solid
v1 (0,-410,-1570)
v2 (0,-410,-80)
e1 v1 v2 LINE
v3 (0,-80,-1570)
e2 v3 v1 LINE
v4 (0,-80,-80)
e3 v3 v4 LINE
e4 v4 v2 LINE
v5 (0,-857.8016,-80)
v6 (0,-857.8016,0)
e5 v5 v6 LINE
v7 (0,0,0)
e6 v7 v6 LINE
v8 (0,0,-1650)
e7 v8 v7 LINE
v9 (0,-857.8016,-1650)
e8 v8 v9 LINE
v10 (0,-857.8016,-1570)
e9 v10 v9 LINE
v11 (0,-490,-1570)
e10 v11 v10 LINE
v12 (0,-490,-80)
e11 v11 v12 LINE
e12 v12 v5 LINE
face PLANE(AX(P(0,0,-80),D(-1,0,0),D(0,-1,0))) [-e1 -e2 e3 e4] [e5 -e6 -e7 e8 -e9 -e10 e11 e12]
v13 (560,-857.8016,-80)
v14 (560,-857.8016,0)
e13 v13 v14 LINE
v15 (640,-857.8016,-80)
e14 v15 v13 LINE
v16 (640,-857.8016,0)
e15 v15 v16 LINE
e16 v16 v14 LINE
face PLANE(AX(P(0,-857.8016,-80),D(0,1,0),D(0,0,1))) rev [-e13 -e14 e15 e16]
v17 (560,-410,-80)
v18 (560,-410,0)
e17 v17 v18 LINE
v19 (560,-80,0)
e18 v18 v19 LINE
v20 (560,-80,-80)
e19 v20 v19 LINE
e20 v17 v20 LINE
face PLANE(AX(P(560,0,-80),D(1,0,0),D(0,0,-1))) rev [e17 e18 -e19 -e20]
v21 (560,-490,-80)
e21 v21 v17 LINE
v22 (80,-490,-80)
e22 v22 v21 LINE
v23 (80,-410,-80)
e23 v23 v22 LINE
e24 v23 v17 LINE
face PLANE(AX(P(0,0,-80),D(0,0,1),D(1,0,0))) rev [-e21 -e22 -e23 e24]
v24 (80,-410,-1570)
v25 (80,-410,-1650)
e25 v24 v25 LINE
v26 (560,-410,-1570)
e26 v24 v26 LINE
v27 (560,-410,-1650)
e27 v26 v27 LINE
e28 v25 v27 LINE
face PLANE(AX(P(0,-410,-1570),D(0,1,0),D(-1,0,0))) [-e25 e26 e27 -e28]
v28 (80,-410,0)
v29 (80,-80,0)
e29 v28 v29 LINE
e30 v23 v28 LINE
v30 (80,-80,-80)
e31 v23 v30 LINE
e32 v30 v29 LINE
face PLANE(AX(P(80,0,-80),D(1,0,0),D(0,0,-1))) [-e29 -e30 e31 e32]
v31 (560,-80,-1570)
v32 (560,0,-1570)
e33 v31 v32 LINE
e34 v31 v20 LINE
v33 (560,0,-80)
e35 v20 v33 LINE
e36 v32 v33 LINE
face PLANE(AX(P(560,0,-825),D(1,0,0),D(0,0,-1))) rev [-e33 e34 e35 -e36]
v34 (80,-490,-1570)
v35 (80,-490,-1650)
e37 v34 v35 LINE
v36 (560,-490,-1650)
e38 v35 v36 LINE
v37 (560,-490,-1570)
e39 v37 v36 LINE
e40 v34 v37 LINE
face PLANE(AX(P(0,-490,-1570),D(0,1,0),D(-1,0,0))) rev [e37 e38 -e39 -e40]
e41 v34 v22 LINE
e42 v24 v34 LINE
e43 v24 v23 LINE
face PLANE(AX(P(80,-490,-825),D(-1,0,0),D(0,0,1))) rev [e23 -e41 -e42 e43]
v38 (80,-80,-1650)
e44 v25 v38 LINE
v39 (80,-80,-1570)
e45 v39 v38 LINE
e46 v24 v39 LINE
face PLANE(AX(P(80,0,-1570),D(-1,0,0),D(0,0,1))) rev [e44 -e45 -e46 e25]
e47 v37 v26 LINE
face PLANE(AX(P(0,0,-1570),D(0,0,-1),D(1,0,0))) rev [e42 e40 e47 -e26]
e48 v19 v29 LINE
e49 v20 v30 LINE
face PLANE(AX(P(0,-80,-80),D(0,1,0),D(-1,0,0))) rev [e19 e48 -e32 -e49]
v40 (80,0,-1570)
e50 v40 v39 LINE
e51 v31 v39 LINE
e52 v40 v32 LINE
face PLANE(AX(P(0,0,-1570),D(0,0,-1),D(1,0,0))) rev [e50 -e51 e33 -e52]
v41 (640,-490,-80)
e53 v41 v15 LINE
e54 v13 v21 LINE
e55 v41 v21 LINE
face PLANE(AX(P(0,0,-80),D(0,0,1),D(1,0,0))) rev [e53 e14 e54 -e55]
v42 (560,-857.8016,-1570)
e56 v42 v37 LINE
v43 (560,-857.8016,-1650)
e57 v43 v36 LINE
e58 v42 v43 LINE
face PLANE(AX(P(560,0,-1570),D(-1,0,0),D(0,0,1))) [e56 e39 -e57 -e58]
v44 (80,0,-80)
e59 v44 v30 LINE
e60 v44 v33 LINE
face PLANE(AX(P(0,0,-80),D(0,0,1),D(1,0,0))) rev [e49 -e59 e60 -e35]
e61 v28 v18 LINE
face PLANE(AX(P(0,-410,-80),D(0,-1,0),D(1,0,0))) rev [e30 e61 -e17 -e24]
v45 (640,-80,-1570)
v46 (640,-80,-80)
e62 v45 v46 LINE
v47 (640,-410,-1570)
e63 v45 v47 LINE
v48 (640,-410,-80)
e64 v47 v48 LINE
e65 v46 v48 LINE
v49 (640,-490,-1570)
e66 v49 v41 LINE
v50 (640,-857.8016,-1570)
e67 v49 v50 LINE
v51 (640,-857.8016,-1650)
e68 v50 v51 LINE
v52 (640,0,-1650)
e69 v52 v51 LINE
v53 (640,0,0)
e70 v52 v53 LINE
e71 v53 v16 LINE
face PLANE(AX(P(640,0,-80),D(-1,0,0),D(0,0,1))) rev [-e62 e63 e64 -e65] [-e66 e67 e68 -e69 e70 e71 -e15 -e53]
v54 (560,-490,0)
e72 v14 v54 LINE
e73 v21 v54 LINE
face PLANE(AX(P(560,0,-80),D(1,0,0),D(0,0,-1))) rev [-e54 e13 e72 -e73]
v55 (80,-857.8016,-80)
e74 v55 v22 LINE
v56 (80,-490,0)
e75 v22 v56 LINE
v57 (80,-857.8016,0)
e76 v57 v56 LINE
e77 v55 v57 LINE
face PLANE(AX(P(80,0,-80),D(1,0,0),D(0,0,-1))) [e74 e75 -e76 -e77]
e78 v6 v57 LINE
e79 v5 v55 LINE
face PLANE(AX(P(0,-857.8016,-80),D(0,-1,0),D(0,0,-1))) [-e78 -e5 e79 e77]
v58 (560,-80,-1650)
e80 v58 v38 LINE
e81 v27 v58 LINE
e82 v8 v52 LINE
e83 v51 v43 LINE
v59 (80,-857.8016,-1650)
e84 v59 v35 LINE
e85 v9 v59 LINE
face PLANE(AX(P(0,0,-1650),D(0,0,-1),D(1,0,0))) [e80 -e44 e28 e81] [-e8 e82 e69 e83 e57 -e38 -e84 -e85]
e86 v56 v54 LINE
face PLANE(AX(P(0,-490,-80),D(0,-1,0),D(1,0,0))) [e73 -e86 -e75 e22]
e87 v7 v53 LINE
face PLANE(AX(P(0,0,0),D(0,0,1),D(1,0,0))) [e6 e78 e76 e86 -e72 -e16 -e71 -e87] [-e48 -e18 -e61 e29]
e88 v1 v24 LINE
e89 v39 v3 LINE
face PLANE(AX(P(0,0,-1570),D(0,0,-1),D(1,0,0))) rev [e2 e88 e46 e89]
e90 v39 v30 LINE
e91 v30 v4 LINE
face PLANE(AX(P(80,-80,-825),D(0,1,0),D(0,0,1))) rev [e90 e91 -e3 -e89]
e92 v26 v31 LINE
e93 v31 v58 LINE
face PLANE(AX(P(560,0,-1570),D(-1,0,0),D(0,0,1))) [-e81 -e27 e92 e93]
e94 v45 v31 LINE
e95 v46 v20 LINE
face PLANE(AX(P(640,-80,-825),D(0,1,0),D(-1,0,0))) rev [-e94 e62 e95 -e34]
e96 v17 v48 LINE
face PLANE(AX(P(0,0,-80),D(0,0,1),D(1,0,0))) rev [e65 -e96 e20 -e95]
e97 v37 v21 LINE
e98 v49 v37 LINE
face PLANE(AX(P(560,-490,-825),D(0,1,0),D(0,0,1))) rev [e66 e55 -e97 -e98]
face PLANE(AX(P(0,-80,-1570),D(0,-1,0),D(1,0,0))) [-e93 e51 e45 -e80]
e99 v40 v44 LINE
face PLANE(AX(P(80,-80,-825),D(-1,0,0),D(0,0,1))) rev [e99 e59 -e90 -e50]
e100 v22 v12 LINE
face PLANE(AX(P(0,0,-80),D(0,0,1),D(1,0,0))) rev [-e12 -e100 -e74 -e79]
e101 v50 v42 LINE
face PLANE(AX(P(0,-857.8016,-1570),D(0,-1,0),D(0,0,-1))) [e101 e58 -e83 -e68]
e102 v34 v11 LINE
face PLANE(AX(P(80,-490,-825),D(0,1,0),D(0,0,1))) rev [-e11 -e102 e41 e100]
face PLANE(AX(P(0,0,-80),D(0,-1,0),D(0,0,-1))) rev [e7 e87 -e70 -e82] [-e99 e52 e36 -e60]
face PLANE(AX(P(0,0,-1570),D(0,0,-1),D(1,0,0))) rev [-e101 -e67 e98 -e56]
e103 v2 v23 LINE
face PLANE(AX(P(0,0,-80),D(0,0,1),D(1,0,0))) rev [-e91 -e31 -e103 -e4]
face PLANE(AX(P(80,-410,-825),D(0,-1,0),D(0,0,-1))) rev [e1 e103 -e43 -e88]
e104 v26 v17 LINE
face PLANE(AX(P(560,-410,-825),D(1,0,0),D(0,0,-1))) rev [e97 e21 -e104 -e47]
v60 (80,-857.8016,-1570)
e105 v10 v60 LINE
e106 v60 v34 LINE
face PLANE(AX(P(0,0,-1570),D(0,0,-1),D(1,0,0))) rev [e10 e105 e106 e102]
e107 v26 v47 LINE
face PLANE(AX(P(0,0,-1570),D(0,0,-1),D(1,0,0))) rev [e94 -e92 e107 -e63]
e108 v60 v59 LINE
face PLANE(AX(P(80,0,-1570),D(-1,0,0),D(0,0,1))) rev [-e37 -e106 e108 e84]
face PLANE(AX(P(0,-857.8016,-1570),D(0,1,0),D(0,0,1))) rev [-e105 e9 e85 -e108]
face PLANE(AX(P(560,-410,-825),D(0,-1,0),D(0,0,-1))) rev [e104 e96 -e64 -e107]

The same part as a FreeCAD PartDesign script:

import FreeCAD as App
import Part
import Sketcher

V = App.Vector


def add_polygon(sketch, points):
    """Adds a closed chain of lines whose ends are joined by coincident constraints."""
    first, n = sketch.GeometryCount, len(points)
    for a, b in zip(points, points[1:] + points[:1]):
        sketch.addGeometry(Part.LineSegment(App.Vector(*a, 0), App.Vector(*b, 0)), False)
    for i in range(n):
        sketch.addConstraint(Sketcher.Constraint("Coincident", first + i, 2, first + (i + 1) % n, 1))

doc = App.newDocument("Part")
body = doc.addObject("PartDesign::Body", "Body")

sketch1 = body.newObject("Sketcher::SketchObject", "Sketch")
sketch1.AttachmentSupport = (doc.getObject("XY_Plane"), [""])
sketch1.MapMode = "FlatFace"
add_polygon(sketch1, [(640, 0), (0, 0), (0, -858), (80, -858), (80, -490), (560, -490), (560, -858), (640, -858)])
add_polygon(sketch1, [(560, -410), (80, -410), (80, -80), (560, -80)])
sketch1.addConstraint(Sketcher.Constraint("Horizontal", 0))
sketch1.addConstraint(Sketcher.Constraint("Vertical", 1))
sketch1.addConstraint(Sketcher.Constraint("Horizontal", 2))
sketch1.addConstraint(Sketcher.Constraint("Vertical", 3))
sketch1.addConstraint(Sketcher.Constraint("Horizontal", 4))
sketch1.addConstraint(Sketcher.Constraint("Vertical", 5))
sketch1.addConstraint(Sketcher.Constraint("Horizontal", 6))
sketch1.addConstraint(Sketcher.Constraint("Vertical", 7))
sketch1.addConstraint(Sketcher.Constraint("Horizontal", 8))
sketch1.addConstraint(Sketcher.Constraint("Vertical", 9))
sketch1.addConstraint(Sketcher.Constraint("Horizontal", 10))
sketch1.addConstraint(Sketcher.Constraint("Vertical", 11))
sketch1.addConstraint(Sketcher.Constraint("Coincident", 0, 2, -1, 1))
sketch1.addConstraint(Sketcher.Constraint("Horizontal", 2, 2, 5, 2))
sketch1.addConstraint(Sketcher.Constraint("Vertical", 3, 2, 8, 2))
sketch1.addConstraint(Sketcher.Constraint("Vertical", 5, 2, 10, 2))
sketch1.addConstraint(Sketcher.Constraint("Equal", 2, 6))
sketch1.addConstraint(Sketcher.Constraint("DistanceX", 0, 2, 0, 1, 640.0))
sketch1.addConstraint(Sketcher.Constraint("DistanceX", 2, 1, 2, 2, 80.0))
sketch1.addConstraint(Sketcher.Constraint("DistanceY", 9, 1, 9, 2, 330.0))
sketch1.addConstraint(Sketcher.Constraint("DistanceY", 3, 2, -1, 1, 490.0))
sketch1.addConstraint(Sketcher.Constraint("DistanceY", 8, 2, -1, 1, 410.0))
sketch1.addConstraint(Sketcher.Constraint("DistanceY", 1, 2, 1, 1, 857.8016))
pad1 = body.newObject("PartDesign::Pad", "Pad")
pad1.Profile = sketch1
pad1.Length = 80
pad1.Reversed = True

sketch2 = body.newObject("Sketcher::SketchObject", "Sketch001")
sketch2.AttachmentSupport = (doc.getObject("XY_Plane"), [""])
sketch2.MapMode = "FlatFace"
sketch2.AttachmentOffset = App.Placement(V(0, 0, -80), App.Rotation())
add_polygon(sketch2, [(640, 0), (640, -80), (560, -80), (560, 0)])
add_polygon(sketch2, [(80, 0), (80, -80), (0, -80), (0, 0)])
add_polygon(sketch2, [(640, -410), (640, -490), (560, -490), (560, -410)])
add_polygon(sketch2, [(80, -410), (80, -490), (0, -490), (0, -410)])
sketch2.addConstraint(Sketcher.Constraint("Vertical", 0))
sketch2.addConstraint(Sketcher.Constraint("Horizontal", 1))
sketch2.addConstraint(Sketcher.Constraint("Vertical", 2))
sketch2.addConstraint(Sketcher.Constraint("Horizontal", 3))
sketch2.addConstraint(Sketcher.Constraint("Vertical", 4))
sketch2.addConstraint(Sketcher.Constraint("Horizontal", 5))
sketch2.addConstraint(Sketcher.Constraint("Vertical", 6))
sketch2.addConstraint(Sketcher.Constraint("Horizontal", 7))
sketch2.addConstraint(Sketcher.Constraint("Vertical", 8))
sketch2.addConstraint(Sketcher.Constraint("Horizontal", 9))
sketch2.addConstraint(Sketcher.Constraint("Vertical", 10))
sketch2.addConstraint(Sketcher.Constraint("Horizontal", 11))
sketch2.addConstraint(Sketcher.Constraint("Vertical", 12))
sketch2.addConstraint(Sketcher.Constraint("Horizontal", 13))
sketch2.addConstraint(Sketcher.Constraint("Vertical", 14))
sketch2.addConstraint(Sketcher.Constraint("Horizontal", 15))
sketch2.addConstraint(Sketcher.Constraint("Coincident", 6, 2, -1, 1))
sketch2.addConstraint(Sketcher.Constraint("PointOnObject", 2, 2, -1))
sketch2.addConstraint(Sketcher.Constraint("PointOnObject", 13, 2, -2))
sketch2.addConstraint(Sketcher.Constraint("Horizontal", 1, 2, 4, 2))
sketch2.addConstraint(Sketcher.Constraint("Horizontal", 9, 2, 12, 2))
sketch2.addConstraint(Sketcher.Constraint("Horizontal", 11, 2, 14, 2))
sketch2.addConstraint(Sketcher.Constraint("Vertical", 3, 2, 8, 2))
sketch2.addConstraint(Sketcher.Constraint("Vertical", 2, 2, 9, 2))
sketch2.addConstraint(Sketcher.Constraint("Vertical", 7, 2, 12, 2))
sketch2.addConstraint(Sketcher.Constraint("Equal", 3, 5))
sketch2.addConstraint(Sketcher.Constraint("Equal", 15, 0))
sketch2.addConstraint(Sketcher.Constraint("Equal", 6, 8))
sketch2.addConstraint(Sketcher.Constraint("DistanceX", 1, 2, 1, 1, 80.0))
sketch2.addConstraint(Sketcher.Constraint("DistanceX", -1, 1, 0, 2, 640.0))
sketch2.addConstraint(Sketcher.Constraint("DistanceY", 8, 2, -1, 1, 490.0))
pad2 = body.newObject("PartDesign::Pad", "Pad001")
pad2.Profile = sketch2
pad2.Length = 745
pad2.Reversed = True
doc.recompute()

datumplane = body.newObject("PartDesign::Plane", "DatumPlane")
datumplane.AttachmentSupport = (doc.getObject("XY_Plane"), [""])
datumplane.MapMode = "FlatFace"
datumplane.AttachmentOffset = App.Placement(V(0, 0, -825), App.Rotation())
mirrored = body.newObject("PartDesign::Mirrored", "Mirrored")
mirrored.Originals = [pad2]
mirrored.MirrorPlane = (datumplane, [""])
body.Tip = mirrored
doc.recompute()

datumplane2 = body.newObject("PartDesign::Plane", "DatumPlane001")
datumplane2.AttachmentSupport = (doc.getObject("XY_Plane"), [""])
datumplane2.MapMode = "FlatFace"
datumplane2.AttachmentOffset = App.Placement(V(0, 0, -825), App.Rotation())
mirrored2 = body.newObject("PartDesign::Mirrored", "Mirrored001")
mirrored2.Originals = [pad1]
mirrored2.MirrorPlane = (datumplane2, [""])
body.Tip = mirrored2

doc.recompute()
